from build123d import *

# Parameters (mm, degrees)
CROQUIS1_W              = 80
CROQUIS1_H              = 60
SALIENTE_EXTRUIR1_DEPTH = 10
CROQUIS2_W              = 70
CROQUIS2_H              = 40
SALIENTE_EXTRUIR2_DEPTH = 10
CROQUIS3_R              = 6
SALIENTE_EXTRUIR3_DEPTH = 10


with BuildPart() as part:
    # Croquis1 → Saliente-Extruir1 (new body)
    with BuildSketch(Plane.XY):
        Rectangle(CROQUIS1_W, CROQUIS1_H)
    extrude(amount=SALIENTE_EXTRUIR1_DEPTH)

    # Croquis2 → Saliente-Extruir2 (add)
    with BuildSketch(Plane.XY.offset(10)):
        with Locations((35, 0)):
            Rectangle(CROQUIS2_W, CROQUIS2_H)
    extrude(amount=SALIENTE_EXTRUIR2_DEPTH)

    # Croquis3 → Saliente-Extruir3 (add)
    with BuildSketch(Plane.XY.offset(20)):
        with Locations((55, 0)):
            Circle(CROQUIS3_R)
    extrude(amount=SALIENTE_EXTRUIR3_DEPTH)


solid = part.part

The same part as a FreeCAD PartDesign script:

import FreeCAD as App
import Part
import Sketcher


def add_polygon(sketch, points):
    """Adds a closed chain of lines whose ends are joined by coincident constraints."""
    first, n = sketch.GeometryCount, len(points)
    for a, b in zip(points, points[1:] + points[:1]):
        sketch.addGeometry(Part.LineSegment(App.Vector(*a, 0), App.Vector(*b, 0)), False)
    for i in range(n):
        sketch.addConstraint(Sketcher.Constraint("Coincident", first + i, 2, first + (i + 1) % n, 1))

doc = App.newDocument("Part")
body = doc.addObject("PartDesign::Body", "Body")

# Sketch on XY plane
sketch1 = body.newObject("Sketcher::SketchObject", "Sketch")
sketch1.AttachmentSupport = (doc.getObject("XY_Plane"), [""])
sketch1.MapMode = "FlatFace"
add_polygon(sketch1, [(-40, 30), (-40, -30), (40, -30), (40, 30)])  # lines 0-3
sketch1.addConstraint(Sketcher.Constraint("Vertical", 0))
sketch1.addConstraint(Sketcher.Constraint("Horizontal", 1))
sketch1.addConstraint(Sketcher.Constraint("Vertical", 2))
sketch1.addConstraint(Sketcher.Constraint("Horizontal", 3))
sketch1.addConstraint(Sketcher.Constraint("Symmetric", 0, 2, 2, 2, -1, 1))
sketch1.addConstraint(Sketcher.Constraint("DistanceX", 1, 1, 1, 2, 80.0))
sketch1.addConstraint(Sketcher.Constraint("DistanceY", 0, 2, 0, 1, 60.0))
pad1 = body.newObject("PartDesign::Pad", "Pad")
pad1.Profile = sketch1
pad1.Length = 10

# Sketch on XY plane
sketch2 = body.newObject("Sketcher::SketchObject", "Sketch001")
sketch2.AttachmentSupport = (doc.getObject("XY_Plane"), [""])
sketch2.MapMode = "FlatFace"
sketch2.AttachmentOffset = App.Placement(App.Vector(0, 0, 10), App.Rotation())
add_polygon(sketch2, [(0, 20), (0, -20), (70, -20), (70, 20)])  # lines 0-3
sketch2.addConstraint(Sketcher.Constraint("Vertical", 0))
sketch2.addConstraint(Sketcher.Constraint("Horizontal", 1))
sketch2.addConstraint(Sketcher.Constraint("Vertical", 2))
sketch2.addConstraint(Sketcher.Constraint("Horizontal", 3))
sketch2.addConstraint(Sketcher.Constraint("Symmetric", 0, 2, 3, 2, -1, 1))
sketch2.addConstraint(Sketcher.Constraint("DistanceX", 1, 1, 1, 2, 70.0))
sketch2.addConstraint(Sketcher.Constraint("DistanceY", 0, 2, 0, 1, 40.0))
pad2 = body.newObject("PartDesign::Pad", "Pad001")
pad2.Profile = sketch2
pad2.Length = 10

# Sketch on XY plane
sketch3 = body.newObject("Sketcher::SketchObject", "Sketch002")
sketch3.AttachmentSupport = (doc.getObject("XY_Plane"), [""])
sketch3.MapMode = "FlatFace"
sketch3.AttachmentOffset = App.Placement(App.Vector(0, 0, 20), App.Rotation())
sketch3.addGeometry(Part.Circle(App.Vector(55, 0, 0), App.Vector(0, 0, 1), 6), False)
sketch3.addConstraint(Sketcher.Constraint("PointOnObject", 0, 3, -1))
sketch3.addConstraint(Sketcher.Constraint("Diameter", 0, 12.0))
sketch3.addConstraint(Sketcher.Constraint("DistanceX", -1, 1, 0, 3, 55.0))
pad3 = body.newObject("PartDesign::Pad", "Pad002")
pad3.Profile = sketch3
pad3.Length = 10

doc.recompute()
